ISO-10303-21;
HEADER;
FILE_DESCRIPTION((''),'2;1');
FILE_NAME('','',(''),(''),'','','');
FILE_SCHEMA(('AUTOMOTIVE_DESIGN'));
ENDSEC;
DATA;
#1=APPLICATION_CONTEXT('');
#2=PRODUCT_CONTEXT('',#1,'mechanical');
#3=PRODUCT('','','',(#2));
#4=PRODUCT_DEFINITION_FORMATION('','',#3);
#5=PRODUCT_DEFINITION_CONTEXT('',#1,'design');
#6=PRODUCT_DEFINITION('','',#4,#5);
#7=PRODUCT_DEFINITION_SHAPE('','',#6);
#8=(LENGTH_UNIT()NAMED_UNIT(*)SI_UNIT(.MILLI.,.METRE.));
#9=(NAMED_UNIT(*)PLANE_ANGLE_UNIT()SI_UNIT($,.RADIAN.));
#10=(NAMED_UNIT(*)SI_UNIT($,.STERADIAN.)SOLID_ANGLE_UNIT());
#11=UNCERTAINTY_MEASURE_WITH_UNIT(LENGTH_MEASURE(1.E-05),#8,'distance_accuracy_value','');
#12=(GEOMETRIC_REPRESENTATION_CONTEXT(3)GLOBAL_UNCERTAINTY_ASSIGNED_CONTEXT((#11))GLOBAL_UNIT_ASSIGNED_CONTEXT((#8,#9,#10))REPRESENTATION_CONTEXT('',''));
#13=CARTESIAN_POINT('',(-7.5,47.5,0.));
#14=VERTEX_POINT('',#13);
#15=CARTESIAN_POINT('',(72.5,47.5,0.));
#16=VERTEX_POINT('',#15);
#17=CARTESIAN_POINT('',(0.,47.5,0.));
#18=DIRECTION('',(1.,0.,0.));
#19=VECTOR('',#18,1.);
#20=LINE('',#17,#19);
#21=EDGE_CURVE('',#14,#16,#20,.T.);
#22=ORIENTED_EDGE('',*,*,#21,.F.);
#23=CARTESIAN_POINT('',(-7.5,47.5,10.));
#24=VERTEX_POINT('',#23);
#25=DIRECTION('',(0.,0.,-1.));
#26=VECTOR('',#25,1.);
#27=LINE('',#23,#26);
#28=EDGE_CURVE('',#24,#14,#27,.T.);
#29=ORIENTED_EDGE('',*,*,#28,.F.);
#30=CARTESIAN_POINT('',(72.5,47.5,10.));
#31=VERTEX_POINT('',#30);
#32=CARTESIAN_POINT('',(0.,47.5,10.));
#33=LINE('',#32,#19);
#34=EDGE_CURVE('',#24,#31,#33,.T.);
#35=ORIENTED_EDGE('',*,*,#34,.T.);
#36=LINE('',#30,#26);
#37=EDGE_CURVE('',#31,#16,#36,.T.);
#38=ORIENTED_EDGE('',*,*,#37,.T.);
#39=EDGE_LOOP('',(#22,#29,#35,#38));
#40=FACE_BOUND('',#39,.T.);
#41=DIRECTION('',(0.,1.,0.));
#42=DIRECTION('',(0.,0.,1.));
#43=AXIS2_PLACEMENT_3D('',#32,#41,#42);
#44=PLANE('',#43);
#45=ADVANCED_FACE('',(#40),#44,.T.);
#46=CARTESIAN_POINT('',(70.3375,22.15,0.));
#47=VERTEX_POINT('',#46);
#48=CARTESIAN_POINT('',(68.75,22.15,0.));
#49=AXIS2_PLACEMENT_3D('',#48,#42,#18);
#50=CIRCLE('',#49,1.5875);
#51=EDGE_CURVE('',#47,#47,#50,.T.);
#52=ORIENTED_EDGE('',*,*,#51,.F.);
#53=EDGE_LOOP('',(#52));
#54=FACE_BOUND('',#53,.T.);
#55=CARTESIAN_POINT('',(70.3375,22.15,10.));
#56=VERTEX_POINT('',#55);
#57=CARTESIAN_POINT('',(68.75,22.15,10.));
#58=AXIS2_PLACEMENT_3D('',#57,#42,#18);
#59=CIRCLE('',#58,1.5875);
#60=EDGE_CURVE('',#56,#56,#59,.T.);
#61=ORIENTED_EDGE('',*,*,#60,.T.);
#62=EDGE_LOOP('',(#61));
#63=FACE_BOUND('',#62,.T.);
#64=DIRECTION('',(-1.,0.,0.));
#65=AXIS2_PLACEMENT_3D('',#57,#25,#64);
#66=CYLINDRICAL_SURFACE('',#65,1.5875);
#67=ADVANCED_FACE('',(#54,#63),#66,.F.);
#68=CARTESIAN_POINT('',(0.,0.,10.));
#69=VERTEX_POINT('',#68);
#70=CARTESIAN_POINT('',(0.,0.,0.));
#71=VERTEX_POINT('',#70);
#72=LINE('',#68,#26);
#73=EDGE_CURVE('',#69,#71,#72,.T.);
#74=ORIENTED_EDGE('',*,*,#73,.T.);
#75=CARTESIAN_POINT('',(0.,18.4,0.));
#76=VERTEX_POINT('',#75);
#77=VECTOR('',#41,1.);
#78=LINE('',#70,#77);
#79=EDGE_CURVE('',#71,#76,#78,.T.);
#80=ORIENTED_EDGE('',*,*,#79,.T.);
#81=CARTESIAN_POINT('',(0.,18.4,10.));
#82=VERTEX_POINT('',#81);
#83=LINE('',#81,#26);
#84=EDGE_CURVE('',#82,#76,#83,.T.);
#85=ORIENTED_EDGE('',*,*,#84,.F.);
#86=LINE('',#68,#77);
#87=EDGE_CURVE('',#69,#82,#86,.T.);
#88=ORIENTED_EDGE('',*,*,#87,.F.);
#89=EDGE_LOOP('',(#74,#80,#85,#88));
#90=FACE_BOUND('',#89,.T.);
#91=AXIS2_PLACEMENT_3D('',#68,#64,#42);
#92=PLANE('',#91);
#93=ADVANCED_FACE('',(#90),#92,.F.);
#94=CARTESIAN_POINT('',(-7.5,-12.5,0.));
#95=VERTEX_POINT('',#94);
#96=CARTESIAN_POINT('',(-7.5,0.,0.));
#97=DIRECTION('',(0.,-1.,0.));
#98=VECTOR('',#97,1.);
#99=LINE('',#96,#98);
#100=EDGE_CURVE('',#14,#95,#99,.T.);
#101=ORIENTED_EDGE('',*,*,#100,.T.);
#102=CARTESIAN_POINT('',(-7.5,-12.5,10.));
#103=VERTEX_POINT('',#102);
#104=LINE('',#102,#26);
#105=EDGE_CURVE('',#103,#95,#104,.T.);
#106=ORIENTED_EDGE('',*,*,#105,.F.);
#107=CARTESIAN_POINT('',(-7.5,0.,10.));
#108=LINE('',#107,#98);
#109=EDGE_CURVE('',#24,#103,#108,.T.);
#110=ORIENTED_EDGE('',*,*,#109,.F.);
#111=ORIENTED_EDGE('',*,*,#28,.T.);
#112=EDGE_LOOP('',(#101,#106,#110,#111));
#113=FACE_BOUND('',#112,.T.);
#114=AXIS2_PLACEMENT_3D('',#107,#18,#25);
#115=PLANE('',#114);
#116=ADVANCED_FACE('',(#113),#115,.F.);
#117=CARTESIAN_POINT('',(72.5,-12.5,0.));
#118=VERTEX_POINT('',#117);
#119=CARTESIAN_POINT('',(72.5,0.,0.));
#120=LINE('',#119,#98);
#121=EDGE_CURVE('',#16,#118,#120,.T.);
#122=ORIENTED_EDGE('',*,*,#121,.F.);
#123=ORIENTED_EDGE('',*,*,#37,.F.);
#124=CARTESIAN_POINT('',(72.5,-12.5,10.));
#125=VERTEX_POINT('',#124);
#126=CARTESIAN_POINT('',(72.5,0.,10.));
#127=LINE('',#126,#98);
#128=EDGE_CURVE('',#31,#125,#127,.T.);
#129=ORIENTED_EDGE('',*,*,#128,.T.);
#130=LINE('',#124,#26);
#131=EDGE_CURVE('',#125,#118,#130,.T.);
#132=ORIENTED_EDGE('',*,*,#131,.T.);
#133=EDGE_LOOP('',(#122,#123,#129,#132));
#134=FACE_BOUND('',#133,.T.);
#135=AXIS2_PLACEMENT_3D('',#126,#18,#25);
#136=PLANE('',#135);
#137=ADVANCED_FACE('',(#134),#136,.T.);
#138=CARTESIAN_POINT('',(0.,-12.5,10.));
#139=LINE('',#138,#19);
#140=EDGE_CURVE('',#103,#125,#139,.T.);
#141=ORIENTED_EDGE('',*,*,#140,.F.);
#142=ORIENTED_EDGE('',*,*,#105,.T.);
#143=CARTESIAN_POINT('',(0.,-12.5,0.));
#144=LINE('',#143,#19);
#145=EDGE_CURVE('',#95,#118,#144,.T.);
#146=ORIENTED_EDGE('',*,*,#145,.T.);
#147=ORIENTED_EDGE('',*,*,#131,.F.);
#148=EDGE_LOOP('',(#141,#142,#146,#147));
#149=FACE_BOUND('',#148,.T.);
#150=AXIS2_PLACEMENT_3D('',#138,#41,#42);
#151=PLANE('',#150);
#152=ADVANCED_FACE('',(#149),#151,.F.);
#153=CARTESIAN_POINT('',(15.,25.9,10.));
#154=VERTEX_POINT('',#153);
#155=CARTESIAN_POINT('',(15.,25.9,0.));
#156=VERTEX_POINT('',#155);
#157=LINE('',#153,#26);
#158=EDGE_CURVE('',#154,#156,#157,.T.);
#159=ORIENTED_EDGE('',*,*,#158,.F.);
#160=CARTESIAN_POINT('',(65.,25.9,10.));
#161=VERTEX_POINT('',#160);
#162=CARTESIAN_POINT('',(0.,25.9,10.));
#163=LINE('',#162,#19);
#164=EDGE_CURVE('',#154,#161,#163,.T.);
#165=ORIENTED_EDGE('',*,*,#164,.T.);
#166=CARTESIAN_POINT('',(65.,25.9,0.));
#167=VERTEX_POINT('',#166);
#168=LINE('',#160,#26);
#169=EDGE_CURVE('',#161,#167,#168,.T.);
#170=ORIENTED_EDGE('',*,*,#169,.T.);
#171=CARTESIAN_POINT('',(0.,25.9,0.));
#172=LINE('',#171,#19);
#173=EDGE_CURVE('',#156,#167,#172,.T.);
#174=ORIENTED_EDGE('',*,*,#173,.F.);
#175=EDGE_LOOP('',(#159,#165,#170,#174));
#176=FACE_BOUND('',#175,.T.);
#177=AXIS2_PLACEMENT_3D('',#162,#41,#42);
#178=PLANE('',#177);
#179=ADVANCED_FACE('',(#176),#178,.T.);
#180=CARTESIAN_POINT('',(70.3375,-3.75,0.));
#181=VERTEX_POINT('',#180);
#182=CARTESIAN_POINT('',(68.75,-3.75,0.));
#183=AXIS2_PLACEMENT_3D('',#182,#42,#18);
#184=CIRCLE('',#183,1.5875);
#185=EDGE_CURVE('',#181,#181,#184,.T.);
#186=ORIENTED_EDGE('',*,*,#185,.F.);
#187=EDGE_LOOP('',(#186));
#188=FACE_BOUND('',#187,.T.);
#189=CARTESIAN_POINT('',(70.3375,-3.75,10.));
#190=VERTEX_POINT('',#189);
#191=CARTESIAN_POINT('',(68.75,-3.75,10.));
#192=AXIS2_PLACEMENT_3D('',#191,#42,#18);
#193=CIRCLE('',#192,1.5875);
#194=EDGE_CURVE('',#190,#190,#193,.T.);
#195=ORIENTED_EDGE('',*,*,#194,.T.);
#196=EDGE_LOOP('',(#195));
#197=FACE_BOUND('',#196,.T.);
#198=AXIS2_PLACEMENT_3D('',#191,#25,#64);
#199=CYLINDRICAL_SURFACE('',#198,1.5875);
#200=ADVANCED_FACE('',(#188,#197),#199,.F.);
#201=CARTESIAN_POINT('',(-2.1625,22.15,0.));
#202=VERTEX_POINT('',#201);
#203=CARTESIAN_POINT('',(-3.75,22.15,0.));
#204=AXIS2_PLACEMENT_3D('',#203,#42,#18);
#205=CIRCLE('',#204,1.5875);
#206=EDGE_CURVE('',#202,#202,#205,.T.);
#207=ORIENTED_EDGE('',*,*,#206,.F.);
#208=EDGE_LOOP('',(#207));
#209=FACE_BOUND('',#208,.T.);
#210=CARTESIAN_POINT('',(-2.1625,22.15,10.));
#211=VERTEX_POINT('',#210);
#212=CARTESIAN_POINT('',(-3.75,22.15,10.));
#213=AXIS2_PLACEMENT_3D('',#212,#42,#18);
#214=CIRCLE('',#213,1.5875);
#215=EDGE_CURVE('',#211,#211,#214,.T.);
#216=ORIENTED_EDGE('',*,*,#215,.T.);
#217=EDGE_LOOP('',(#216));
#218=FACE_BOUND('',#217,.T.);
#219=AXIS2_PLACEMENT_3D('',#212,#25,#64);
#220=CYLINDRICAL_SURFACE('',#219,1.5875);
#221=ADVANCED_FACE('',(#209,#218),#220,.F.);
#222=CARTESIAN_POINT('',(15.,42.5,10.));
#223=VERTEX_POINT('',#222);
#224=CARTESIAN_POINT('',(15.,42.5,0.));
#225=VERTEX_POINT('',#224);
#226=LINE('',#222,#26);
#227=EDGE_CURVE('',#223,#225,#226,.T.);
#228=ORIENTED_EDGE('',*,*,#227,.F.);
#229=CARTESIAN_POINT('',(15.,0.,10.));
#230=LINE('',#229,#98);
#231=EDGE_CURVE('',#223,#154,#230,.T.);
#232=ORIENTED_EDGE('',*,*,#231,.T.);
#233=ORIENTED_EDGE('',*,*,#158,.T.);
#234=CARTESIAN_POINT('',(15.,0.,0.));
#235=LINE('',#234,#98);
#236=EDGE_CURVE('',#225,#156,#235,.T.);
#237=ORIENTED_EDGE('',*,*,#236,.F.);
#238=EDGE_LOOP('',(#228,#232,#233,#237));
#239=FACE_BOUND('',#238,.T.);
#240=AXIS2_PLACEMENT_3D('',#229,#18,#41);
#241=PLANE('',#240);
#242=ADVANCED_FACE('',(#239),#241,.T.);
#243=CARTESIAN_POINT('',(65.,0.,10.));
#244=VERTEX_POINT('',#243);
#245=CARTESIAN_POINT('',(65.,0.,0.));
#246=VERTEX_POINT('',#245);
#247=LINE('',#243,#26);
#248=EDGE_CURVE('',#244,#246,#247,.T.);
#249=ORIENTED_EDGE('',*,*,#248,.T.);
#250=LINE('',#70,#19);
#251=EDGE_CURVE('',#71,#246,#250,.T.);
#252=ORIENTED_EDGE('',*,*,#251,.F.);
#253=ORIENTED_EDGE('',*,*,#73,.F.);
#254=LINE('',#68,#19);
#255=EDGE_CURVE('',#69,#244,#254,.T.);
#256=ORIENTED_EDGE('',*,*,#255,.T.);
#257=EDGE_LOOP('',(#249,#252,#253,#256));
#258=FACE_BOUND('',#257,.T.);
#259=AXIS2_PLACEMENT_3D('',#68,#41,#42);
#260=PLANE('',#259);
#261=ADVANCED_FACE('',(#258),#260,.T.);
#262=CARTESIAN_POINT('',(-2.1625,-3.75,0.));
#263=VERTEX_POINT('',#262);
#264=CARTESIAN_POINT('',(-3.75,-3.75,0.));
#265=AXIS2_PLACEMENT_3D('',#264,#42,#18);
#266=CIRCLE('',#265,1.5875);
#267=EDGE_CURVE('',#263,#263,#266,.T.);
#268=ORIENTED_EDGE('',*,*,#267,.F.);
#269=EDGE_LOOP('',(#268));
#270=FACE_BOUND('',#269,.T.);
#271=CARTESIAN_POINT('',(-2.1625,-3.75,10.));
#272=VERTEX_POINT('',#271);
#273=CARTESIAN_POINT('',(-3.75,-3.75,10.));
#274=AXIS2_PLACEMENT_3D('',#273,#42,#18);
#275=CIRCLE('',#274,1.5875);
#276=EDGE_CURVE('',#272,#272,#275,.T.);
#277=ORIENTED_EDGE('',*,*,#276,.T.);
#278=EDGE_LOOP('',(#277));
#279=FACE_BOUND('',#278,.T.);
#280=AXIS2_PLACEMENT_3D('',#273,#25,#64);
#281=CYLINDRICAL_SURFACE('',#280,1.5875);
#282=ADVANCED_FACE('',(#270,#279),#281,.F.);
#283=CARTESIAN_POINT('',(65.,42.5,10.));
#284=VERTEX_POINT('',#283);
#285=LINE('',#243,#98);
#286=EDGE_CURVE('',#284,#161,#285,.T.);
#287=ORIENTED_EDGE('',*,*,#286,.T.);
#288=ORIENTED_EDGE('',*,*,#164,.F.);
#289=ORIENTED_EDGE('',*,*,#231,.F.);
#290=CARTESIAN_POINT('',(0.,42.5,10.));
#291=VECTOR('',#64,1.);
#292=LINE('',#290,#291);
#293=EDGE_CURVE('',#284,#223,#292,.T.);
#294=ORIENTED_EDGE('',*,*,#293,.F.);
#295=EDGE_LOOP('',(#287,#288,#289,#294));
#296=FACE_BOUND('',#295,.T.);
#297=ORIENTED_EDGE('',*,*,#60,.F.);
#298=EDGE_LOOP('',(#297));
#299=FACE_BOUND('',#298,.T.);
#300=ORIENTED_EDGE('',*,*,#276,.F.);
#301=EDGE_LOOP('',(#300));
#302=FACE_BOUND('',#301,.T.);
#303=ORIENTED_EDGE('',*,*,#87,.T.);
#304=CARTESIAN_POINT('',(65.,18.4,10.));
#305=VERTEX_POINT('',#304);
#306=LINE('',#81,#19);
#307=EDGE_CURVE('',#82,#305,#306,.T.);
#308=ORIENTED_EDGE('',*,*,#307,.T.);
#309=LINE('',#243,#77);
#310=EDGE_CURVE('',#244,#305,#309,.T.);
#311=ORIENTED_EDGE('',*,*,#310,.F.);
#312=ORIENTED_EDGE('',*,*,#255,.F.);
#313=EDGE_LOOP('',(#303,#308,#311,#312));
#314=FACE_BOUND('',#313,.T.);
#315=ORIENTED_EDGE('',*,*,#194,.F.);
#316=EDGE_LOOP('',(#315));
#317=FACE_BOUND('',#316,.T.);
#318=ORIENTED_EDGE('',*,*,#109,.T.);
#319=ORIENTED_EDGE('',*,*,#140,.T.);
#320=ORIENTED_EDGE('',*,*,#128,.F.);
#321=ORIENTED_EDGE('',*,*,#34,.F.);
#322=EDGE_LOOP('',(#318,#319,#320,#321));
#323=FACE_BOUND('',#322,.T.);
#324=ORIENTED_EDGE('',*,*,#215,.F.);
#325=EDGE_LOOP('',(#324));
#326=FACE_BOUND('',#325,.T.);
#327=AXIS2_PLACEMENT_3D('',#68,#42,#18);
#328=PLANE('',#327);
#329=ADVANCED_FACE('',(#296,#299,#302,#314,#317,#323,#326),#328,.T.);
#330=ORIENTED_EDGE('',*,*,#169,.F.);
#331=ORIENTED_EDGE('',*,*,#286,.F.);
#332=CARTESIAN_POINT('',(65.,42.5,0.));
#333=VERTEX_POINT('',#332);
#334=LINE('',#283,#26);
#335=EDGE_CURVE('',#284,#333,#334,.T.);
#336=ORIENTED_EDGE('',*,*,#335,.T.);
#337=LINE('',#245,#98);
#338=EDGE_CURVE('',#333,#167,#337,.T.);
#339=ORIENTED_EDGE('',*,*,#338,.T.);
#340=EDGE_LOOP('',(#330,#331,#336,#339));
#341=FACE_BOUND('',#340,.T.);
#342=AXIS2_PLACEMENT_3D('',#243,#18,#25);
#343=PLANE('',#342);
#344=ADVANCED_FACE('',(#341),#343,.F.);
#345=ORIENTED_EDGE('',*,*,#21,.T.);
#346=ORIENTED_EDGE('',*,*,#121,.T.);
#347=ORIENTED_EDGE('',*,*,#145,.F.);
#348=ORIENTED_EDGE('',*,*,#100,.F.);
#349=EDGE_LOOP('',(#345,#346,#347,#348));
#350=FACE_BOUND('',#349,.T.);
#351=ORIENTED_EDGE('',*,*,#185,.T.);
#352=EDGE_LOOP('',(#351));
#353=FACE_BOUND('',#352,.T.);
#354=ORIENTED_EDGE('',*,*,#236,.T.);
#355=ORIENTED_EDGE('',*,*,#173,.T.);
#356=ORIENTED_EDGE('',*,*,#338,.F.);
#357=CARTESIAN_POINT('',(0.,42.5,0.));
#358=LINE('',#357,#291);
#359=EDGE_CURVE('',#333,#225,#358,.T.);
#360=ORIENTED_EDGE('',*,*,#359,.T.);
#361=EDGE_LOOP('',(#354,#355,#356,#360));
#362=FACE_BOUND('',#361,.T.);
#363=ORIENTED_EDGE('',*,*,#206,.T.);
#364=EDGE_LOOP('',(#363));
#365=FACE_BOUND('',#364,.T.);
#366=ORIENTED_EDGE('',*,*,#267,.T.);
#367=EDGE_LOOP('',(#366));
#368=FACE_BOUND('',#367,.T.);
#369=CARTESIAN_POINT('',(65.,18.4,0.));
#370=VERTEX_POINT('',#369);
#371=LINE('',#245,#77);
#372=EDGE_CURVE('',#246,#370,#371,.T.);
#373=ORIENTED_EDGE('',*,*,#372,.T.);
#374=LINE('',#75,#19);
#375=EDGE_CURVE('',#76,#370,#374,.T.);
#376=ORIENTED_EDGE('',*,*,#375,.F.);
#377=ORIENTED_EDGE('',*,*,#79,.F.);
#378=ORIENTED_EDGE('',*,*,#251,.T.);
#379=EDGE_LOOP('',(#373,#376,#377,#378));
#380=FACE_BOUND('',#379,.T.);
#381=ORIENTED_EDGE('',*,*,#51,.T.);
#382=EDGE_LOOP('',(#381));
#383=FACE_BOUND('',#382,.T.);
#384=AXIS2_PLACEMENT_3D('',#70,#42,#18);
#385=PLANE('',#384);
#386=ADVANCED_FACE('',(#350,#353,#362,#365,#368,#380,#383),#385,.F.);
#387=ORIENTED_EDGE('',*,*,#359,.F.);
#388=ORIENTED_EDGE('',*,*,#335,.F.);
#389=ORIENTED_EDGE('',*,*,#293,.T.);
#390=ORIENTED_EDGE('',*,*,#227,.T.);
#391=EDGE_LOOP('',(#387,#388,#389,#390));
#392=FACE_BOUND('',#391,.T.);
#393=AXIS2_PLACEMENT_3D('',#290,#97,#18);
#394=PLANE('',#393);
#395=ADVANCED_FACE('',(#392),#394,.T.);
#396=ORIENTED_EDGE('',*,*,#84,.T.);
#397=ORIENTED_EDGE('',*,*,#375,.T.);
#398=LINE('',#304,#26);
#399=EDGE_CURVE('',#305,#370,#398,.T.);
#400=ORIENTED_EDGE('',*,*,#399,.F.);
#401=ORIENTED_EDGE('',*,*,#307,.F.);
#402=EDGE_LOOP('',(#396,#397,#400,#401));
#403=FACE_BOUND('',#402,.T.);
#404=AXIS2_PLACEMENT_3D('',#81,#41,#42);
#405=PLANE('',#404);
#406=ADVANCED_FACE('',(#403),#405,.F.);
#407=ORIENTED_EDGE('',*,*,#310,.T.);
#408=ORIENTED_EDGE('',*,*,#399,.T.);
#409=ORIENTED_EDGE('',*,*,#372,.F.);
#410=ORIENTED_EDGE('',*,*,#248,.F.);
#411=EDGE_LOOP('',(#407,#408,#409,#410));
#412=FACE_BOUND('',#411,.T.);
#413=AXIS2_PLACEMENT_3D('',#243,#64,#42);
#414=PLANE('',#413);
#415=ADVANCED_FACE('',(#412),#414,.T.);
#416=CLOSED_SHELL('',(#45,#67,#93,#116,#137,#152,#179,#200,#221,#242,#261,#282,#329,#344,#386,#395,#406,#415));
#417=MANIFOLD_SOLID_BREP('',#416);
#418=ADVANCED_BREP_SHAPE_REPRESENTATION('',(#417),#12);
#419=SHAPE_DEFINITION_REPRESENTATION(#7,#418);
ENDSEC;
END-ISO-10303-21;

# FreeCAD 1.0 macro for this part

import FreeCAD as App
import Part
import Sketcher
Q = App.Units.Quantity

doc = App.newDocument("Part")
body = doc.addObject("PartDesign::Body", "Body")

# Sketch on XY plane
sketch1 = body.newObject("Sketcher::SketchObject", "Sketch")
sketch1.AttachmentSupport = (doc.getObject("XY_Plane"), [""])
sketch1.MapMode = "FlatFace"
sketch1.addGeometry([
    Part.LineSegment(App.Vector(-7.5, 47.5, 0), App.Vector(-7.5, -12.5, 0)),  # 0
    Part.LineSegment(App.Vector(-7.5, -12.5, 0), App.Vector(72.5, -12.5, 0)),  # 1
    Part.LineSegment(App.Vector(72.5, -12.5, 0), App.Vector(72.5, 47.5, 0)),  # 2
    Part.LineSegment(App.Vector(72.5, 47.5, 0), App.Vector(-7.5, 47.5, 0)),  # 3
    Part.Circle(App.Vector(-3.8, -3.8, 0), App.Vector(0, 0, 1), 1.6),  # 4
    Part.Circle(App.Vector(68.8, -3.8, 0), App.Vector(0, 0, 1), 1.6),  # 5
    Part.LineSegment(App.Vector(65, 0, 0), App.Vector(0, 0, 0)),  # 6
    Part.LineSegment(App.Vector(0, 0, 0), App.Vector(0, 18.4, 0)),  # 7
    Part.LineSegment(App.Vector(0, 18.4, 0), App.Vector(65, 18.4, 0)),  # 8
    Part.LineSegment(App.Vector(65, 18.4, 0), App.Vector(65, 0, 0)),  # 9
    Part.Circle(App.Vector(-3.8, 22.1, 0), App.Vector(0, 0, 1), 1.6),  # 10
    Part.Circle(App.Vector(68.8, 22.1, 0), App.Vector(0, 0, 1), 1.6),  # 11
    Part.LineSegment(App.Vector(65, 25.9, 0), App.Vector(15, 25.9, 0)),  # 12
    Part.LineSegment(App.Vector(15, 25.9, 0), App.Vector(15, 42.5, 0)),  # 13
    Part.LineSegment(App.Vector(15, 42.5, 0), App.Vector(65, 42.5, 0)),  # 14
    Part.LineSegment(App.Vector(65, 42.5, 0), App.Vector(65, 25.9, 0)),  # 15
], False)
sketch1.addConstraint([
    Sketcher.Constraint("Coincident", 0, 2, 1, 1),
    Sketcher.Constraint("Coincident", 1, 2, 2, 1),
    Sketcher.Constraint("Coincident", 2, 2, 3, 1),
    Sketcher.Constraint("Coincident", 3, 2, 0, 1),
    Sketcher.Constraint("Coincident", 6, 2, 7, 1),
    Sketcher.Constraint("Coincident", 7, 2, 8, 1),
    Sketcher.Constraint("Coincident", 8, 2, 9, 1),
    Sketcher.Constraint("Coincident", 9, 2, 6, 1),
    Sketcher.Constraint("Coincident", 12, 2, 13, 1),
    Sketcher.Constraint("Coincident", 13, 2, 14, 1),
    Sketcher.Constraint("Coincident", 14, 2, 15, 1),
    Sketcher.Constraint("Coincident", 15, 2, 12, 1),
    Sketcher.Constraint("Vertical", 0),
    Sketcher.Constraint("Horizontal", 1),
    Sketcher.Constraint("Vertical", 2),
    Sketcher.Constraint("Horizontal", 3),
    Sketcher.Constraint("Horizontal", 6),
    Sketcher.Constraint("Vertical", 7),
    Sketcher.Constraint("Horizontal", 8),
    Sketcher.Constraint("Vertical", 9),
    Sketcher.Constraint("Horizontal", 12),
    Sketcher.Constraint("Vertical", 13),
    Sketcher.Constraint("Horizontal", 14),
    Sketcher.Constraint("Vertical", 15),
    Sketcher.Constraint("Coincident", 6, 2, -1, 1),
    Sketcher.Constraint("Equal", 4, 5),
    Sketcher.Constraint("Equal", 5, 10),
    Sketcher.Constraint("Equal", 10, 11),
    Sketcher.Constraint("Horizontal", 4, 3, 5, 3),
    Sketcher.Constraint("Horizontal", 10, 3, 11, 3),
    Sketcher.Constraint("Vertical", 4, 3, 10, 3),
    Sketcher.Constraint("Vertical", 5, 3, 11, 3),
    Sketcher.Constraint("Vertical", 9, 2, 14, 2),
    Sketcher.Constraint("DistanceX", 1, 1, 1, 2, Q("80 mm")),
    Sketcher.Constraint("DistanceX", 6, 2, 6, 1, Q("65 mm")),
    Sketcher.Constraint("DistanceX", 12, 2, 12, 1, Q("50 mm")),
    Sketcher.Constraint("DistanceY", 0, 2, 0, 1, Q("60 mm")),
    Sketcher.Constraint("Diameter", 4, Q("3.175 mm")),
    Sketcher.Constraint("DistanceY", 7, 1, 7, 2, Q("18.4 mm")),
    Sketcher.Constraint("DistanceY", 13, 1, 13, 2, Q("16.6 mm")),
    Sketcher.Constraint("DistanceY", 13, 2, 3, 2, Q("5 mm")),
    Sketcher.Constraint("DistanceX", 0, 2, -1, 1, Q("7.5 mm")),
    Sketcher.Constraint("DistanceY", 0, 2, -1, 1, Q("12.5 mm")),
    Sketcher.Constraint("DistanceX", 4, 3, 5, 3, Q("72.5 mm")),
    Sketcher.Constraint("DistanceY", 4, 3, 10, 3, Q("25.9 mm")),
    Sketcher.Constraint("DistanceX", 4, 3, -1, 1, Q("3.75 mm")),
    Sketcher.Constraint("DistanceY", 4, 3, -1, 1, Q("3.75 mm")),
])
pad1 = body.newObject("PartDesign::Pad", "Pad")
pad1.Profile = sketch1
pad1.Length = 10

doc.recompute()
